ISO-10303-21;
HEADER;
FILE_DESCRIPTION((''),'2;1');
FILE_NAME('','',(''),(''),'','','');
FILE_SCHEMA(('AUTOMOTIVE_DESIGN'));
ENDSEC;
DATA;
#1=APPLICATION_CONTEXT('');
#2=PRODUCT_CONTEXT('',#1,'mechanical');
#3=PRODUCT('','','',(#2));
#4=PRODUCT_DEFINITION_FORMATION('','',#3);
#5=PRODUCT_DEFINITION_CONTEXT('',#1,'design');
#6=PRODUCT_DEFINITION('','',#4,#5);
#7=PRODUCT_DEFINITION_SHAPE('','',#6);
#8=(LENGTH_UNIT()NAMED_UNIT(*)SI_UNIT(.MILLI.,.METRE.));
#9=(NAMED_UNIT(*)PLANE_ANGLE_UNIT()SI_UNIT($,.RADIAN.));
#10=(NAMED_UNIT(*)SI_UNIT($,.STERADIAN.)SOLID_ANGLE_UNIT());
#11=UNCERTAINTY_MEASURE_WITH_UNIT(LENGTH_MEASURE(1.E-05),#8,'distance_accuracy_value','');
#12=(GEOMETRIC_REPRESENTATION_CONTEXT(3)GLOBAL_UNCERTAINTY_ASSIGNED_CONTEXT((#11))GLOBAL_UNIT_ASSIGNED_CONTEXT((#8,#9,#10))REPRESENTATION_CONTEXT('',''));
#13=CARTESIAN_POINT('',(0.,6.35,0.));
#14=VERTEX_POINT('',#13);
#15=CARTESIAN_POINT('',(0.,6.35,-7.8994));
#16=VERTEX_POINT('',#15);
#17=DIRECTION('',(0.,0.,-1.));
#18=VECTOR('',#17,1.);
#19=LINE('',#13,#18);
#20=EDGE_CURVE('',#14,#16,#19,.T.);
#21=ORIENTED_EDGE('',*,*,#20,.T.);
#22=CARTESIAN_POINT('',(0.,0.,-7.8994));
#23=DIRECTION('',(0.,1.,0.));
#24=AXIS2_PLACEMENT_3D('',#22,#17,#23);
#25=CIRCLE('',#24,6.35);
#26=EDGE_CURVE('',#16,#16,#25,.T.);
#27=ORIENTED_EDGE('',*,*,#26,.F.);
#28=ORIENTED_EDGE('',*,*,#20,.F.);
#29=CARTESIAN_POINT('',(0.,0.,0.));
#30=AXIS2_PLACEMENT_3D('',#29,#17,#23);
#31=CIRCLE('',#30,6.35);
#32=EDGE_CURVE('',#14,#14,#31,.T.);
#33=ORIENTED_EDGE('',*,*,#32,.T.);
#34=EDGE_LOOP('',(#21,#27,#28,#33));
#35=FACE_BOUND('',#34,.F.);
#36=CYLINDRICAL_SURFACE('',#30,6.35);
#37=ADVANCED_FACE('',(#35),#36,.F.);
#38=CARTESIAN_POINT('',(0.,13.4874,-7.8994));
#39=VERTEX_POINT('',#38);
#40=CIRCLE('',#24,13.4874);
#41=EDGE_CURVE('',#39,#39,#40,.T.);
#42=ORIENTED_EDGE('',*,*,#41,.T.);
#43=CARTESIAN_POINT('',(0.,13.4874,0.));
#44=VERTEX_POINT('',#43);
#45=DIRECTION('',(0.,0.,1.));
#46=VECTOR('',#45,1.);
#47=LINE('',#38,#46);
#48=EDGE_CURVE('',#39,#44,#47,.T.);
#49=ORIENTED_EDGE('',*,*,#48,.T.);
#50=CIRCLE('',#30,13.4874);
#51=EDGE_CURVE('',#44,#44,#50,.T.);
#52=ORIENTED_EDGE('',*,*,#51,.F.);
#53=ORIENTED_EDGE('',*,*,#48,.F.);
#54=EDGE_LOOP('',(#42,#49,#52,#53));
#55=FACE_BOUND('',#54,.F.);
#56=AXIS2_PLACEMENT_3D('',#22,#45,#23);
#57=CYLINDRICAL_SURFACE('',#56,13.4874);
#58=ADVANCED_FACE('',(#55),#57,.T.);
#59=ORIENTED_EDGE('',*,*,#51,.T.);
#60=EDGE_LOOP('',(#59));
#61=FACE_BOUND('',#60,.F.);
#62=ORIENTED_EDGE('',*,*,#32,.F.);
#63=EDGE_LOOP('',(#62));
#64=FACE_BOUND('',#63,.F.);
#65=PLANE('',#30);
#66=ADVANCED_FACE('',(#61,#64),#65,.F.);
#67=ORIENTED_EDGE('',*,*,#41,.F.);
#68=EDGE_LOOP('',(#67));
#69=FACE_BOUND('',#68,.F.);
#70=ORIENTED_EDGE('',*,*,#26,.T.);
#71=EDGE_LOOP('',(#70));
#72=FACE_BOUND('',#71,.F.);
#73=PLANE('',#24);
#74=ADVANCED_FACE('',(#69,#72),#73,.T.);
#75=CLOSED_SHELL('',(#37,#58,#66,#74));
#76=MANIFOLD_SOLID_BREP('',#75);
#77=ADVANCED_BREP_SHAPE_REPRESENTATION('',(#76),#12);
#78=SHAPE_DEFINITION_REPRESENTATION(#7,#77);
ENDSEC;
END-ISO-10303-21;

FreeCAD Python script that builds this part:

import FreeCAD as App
import Part
import Sketcher
from FreeCAD import Vector
Q = App.Units.Quantity


def add_polygon(sketch, points):
    """Adds a closed chain of lines whose ends are joined by coincident constraints."""
    first, n = sketch.GeometryCount, len(points)
    for a, b in zip(points, points[1:] + points[:1]):
        sketch.addGeometry(Part.LineSegment(App.Vector(*a, 0), App.Vector(*b, 0)), False)
    for i in range(n):
        sketch.addConstraint(Sketcher.Constraint("Coincident", first + i, 2, first + (i + 1) % n, 1))

doc = App.newDocument("Part")
body = doc.addObject("PartDesign::Body", "Body")

# Sketch on YZ plane
sketch1 = doc.addObject("Sketcher::SketchObject", "Sketch")
body.addObject(sketch1)
sketch1.AttachmentSupport = (doc.YZ_Plane, [""])
sketch1.MapMode = "FlatFace"
add_polygon(sketch1, [(13.4874, 0), (6.35, 0), (6.35, -7.8994), (13.4874, -7.8994)])  # lines 0-3
sketch1.addConstraint(Sketcher.Constraint("Horizontal", 0))
sketch1.addConstraint(Sketcher.Constraint("Vertical", 1))
sketch1.addConstraint(Sketcher.Constraint("Horizontal", 2))
sketch1.addConstraint(Sketcher.Constraint("Vertical", 3))
sketch1.addConstraint(Sketcher.Constraint("PointOnObject", 0, 2, -1))
sketch1.addConstraint(Sketcher.Constraint("DistanceX", 0, 2, 0, 1, Q("0.281 in")))
sketch1.addConstraint(Sketcher.Constraint("DistanceY", 1, 2, 1, 1, Q("0.311 in")))
sketch1.addConstraint(Sketcher.Constraint("DistanceX", -1, 1, 0, 2, Q("0.25 in")))
revolution = doc.addObject("PartDesign::Revolution", "Revolution")
body.addObject(revolution)
revolution.Profile = sketch1
revolution.ReferenceAxis = (sketch1, ["V_Axis"])
revolution.Angle = 360

doc.recompute()
